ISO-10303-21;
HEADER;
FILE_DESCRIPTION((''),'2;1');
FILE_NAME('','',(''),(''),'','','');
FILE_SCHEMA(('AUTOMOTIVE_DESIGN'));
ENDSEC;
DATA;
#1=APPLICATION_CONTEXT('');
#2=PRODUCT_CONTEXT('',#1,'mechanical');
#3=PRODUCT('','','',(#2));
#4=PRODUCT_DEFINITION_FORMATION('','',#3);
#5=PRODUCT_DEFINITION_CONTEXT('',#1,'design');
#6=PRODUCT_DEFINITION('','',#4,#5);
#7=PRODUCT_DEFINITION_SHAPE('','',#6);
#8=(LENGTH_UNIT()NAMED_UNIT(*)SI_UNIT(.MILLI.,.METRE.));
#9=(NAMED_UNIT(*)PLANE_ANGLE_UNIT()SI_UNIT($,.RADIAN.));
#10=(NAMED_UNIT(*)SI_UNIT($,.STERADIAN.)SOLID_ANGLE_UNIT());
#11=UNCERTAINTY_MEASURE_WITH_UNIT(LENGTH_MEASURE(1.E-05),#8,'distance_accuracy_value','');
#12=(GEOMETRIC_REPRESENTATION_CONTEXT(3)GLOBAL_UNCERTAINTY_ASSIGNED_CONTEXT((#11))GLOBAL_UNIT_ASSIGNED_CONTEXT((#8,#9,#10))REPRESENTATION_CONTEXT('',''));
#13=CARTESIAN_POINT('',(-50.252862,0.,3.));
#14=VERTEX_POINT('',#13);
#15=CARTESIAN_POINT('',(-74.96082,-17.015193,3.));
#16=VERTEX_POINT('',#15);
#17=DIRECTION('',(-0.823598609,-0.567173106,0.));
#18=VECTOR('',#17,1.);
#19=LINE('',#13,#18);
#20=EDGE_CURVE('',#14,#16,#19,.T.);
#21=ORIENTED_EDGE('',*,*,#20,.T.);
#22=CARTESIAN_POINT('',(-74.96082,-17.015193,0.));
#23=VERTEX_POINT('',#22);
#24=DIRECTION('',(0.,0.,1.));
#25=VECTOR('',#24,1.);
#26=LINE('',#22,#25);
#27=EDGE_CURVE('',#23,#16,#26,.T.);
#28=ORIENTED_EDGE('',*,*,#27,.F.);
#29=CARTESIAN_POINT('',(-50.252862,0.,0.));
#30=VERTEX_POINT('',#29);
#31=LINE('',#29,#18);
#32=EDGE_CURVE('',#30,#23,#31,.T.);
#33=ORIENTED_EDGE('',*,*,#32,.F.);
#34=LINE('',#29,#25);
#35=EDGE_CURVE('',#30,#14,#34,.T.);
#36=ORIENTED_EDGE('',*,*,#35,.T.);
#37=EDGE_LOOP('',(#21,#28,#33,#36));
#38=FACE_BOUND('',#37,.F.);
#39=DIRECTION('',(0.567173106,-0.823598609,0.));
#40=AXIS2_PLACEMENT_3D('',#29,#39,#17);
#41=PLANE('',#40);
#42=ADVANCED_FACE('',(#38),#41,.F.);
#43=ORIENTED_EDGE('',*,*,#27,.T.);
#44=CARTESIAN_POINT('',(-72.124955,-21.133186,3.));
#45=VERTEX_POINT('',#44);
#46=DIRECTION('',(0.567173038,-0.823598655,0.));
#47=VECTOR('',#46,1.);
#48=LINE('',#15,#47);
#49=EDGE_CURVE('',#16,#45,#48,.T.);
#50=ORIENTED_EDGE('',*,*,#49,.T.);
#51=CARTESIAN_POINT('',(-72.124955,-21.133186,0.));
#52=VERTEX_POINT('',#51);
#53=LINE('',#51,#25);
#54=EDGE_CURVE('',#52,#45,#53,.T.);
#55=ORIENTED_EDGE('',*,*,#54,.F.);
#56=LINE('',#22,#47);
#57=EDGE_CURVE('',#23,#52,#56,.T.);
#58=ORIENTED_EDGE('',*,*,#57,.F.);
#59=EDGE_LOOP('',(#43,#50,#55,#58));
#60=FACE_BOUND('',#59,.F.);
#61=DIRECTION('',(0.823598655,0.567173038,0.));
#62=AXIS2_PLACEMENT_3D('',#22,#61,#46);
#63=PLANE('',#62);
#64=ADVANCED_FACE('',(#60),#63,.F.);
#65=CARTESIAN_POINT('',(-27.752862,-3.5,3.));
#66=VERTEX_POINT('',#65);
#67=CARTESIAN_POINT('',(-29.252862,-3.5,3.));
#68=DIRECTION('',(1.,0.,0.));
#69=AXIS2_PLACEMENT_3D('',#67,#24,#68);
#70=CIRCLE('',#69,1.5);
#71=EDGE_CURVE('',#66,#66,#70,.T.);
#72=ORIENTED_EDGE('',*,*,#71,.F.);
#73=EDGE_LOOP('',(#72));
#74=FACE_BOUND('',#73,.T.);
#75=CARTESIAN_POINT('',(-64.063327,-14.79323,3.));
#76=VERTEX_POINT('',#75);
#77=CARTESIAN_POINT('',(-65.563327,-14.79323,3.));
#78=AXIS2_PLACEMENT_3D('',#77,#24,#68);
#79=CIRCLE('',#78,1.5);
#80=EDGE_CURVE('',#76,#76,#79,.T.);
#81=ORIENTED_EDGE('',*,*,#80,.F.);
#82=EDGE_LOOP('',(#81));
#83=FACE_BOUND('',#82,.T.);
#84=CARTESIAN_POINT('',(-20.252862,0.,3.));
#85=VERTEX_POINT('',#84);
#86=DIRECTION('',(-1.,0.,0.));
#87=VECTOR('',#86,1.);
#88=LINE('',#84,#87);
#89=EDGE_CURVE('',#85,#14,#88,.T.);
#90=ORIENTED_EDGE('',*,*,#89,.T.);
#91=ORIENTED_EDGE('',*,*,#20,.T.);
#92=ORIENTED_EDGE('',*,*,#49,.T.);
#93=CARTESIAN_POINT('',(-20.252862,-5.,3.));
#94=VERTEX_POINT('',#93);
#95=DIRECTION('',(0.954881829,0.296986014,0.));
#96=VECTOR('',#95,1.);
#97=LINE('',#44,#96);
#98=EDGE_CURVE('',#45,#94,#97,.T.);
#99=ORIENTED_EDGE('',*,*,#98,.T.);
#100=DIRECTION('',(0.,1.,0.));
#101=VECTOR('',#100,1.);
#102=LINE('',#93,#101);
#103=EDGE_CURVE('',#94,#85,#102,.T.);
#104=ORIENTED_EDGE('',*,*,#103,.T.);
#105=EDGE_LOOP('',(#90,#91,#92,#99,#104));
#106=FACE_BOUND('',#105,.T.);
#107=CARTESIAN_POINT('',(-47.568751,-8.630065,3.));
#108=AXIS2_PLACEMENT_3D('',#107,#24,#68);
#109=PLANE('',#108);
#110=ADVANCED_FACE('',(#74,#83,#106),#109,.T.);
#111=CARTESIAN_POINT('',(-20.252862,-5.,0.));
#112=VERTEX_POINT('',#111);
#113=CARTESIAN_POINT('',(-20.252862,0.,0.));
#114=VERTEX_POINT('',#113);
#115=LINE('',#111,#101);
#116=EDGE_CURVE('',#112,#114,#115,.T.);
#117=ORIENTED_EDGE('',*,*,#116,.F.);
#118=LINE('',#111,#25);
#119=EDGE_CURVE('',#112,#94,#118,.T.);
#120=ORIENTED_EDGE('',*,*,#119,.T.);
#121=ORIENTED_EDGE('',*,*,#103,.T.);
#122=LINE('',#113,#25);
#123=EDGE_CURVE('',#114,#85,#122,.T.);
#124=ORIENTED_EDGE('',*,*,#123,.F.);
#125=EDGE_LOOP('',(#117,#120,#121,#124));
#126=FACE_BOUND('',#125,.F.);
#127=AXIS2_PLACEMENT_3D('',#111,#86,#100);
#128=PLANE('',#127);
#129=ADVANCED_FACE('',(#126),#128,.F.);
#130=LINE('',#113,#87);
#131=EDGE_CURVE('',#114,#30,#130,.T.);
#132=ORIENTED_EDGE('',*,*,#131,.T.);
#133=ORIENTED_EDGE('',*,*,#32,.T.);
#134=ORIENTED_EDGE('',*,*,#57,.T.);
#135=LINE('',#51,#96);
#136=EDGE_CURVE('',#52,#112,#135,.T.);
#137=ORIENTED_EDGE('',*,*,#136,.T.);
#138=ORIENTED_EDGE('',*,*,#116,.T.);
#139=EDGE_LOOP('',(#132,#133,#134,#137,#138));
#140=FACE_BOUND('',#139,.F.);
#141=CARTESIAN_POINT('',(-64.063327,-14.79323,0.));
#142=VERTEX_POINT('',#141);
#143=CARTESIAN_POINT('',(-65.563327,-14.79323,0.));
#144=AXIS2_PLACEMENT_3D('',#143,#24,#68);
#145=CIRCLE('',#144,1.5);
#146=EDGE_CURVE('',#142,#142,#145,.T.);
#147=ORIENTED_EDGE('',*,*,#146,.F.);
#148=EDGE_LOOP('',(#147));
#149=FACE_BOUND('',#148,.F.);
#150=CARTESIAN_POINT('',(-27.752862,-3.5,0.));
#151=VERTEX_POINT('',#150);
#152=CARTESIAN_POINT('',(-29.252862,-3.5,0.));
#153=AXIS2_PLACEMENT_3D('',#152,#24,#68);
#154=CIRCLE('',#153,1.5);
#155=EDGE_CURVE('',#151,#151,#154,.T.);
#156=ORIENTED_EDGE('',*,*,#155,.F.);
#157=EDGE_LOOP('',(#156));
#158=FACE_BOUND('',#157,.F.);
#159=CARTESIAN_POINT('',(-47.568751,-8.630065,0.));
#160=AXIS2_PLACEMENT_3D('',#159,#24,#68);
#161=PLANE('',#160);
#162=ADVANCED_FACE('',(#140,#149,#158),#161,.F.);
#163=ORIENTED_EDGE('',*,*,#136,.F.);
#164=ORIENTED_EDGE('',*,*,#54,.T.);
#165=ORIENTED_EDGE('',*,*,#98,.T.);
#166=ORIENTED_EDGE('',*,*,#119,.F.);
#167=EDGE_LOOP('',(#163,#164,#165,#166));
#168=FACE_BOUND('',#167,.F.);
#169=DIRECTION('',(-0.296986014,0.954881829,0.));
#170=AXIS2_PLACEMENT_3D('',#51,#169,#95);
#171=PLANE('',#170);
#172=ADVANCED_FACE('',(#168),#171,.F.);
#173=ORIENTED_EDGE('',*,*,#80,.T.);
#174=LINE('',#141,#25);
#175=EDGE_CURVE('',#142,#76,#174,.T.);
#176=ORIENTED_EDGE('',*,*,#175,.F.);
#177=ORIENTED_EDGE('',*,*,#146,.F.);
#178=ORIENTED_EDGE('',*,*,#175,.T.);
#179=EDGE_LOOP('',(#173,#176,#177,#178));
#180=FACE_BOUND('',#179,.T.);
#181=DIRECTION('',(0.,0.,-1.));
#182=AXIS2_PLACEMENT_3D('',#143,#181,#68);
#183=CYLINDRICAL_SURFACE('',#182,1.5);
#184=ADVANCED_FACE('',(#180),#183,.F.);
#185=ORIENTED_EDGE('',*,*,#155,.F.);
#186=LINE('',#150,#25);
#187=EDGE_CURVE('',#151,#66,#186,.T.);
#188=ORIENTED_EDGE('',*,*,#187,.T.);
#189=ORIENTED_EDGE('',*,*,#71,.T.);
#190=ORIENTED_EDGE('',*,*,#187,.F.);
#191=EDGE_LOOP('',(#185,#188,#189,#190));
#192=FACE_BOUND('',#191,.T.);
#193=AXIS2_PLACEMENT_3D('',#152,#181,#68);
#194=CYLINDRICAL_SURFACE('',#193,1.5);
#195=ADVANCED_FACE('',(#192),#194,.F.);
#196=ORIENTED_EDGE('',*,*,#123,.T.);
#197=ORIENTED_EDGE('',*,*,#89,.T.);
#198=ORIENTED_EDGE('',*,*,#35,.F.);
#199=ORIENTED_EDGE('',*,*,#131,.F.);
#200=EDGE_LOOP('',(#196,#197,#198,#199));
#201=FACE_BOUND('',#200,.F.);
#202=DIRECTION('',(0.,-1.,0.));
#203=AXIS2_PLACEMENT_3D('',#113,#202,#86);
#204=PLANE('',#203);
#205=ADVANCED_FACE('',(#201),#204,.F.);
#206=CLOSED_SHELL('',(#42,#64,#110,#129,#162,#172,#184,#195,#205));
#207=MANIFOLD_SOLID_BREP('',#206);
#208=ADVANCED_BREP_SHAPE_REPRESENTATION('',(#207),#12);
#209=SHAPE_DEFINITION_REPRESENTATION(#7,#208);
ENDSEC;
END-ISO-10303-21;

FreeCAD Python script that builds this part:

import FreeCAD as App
import Part
import Sketcher
from FreeCAD import Vector
Q = App.Units.Quantity


def add_polygon(sketch, points):
    """Adds a closed chain of lines whose ends are joined by coincident constraints."""
    first, n = sketch.GeometryCount, len(points)
    for a, b in zip(points, points[1:] + points[:1]):
        sketch.addGeometry(Part.LineSegment(App.Vector(*a, 0), App.Vector(*b, 0)), False)
    for i in range(n):
        sketch.addConstraint(Sketcher.Constraint("Coincident", first + i, 2, first + (i + 1) % n, 1))

doc = App.newDocument("Part")
body = doc.addObject("PartDesign::Body", "Body")

# Sketch on XY plane
sketch1 = body.newObject("Sketcher::SketchObject", "Sketch")
sketch1.AttachmentSupport = (doc.getObject("XY_Plane"), [""])
sketch1.MapMode = "FlatFace"
add_polygon(sketch1, [(-20.3, 0), (-50.3, 0), (-75, -17), (-72.1, -21.1), (-20.3, -5)])  # lines 0-4
sketch1.addGeometry(Part.Circle(Vector(-65.6, -14.8, 0), Vector(0, 0, 1), 1.5), False)  # 5
sketch1.addGeometry(Part.Circle(Vector(-29.3, -3.5, 0), Vector(0, 0, 1), 1.5), False)  # 6
sketch1.addConstraint(Sketcher.Constraint("Horizontal", 0))
sketch1.addConstraint(Sketcher.Constraint("Vertical", 4))
sketch1.addConstraint(Sketcher.Constraint("Equal", 5, 6))
sketch1.addConstraint(Sketcher.Constraint("PointOnObject", 0, 2, -1))
sketch1.addConstraint(Sketcher.Constraint("Perpendicular", 1, 2))
sketch1.addConstraint(Sketcher.Constraint("Diameter", 5, Q("3 mm")))
sketch1.addConstraint(Sketcher.Constraint("DistanceX", 0, 2, 0, 1, Q("30 mm")))
sketch1.addConstraint(Sketcher.Constraint("DistanceY", 4, 1, 4, 2, Q("5 mm")))
sketch1.addConstraint(Sketcher.Constraint("Distance", 1, Q("30 mm")))
sketch1.addConstraint(Sketcher.Constraint("Distance", 2, Q("5 mm")))
sketch1.addConstraint(Sketcher.Constraint("DistanceX", 0, 2, 6, 3, Q("21 mm")))
sketch1.addConstraint(Sketcher.Constraint("DistanceY", 6, 3, -1, 1, Q("3.5 mm")))
sketch1.addConstraint(Sketcher.Constraint("Distance", 3, Q("54.32305 mm")))
sketch1.addConstraint(Sketcher.Constraint("DistanceY", 5, 3, -1, 1, Q("14.79323 mm")))
sketch1.addConstraint(Sketcher.Constraint("DistanceX", 1, 2, -1, 1, Q("74.96082 mm")))
sketch1.addConstraint(Sketcher.Constraint("DistanceX", 5, 3, -1, 1, Q("65.563327 mm")))
pad1 = body.newObject("PartDesign::Pad", "Pad")
pad1.Profile = sketch1
pad1.Length = 3

doc.recompute()
